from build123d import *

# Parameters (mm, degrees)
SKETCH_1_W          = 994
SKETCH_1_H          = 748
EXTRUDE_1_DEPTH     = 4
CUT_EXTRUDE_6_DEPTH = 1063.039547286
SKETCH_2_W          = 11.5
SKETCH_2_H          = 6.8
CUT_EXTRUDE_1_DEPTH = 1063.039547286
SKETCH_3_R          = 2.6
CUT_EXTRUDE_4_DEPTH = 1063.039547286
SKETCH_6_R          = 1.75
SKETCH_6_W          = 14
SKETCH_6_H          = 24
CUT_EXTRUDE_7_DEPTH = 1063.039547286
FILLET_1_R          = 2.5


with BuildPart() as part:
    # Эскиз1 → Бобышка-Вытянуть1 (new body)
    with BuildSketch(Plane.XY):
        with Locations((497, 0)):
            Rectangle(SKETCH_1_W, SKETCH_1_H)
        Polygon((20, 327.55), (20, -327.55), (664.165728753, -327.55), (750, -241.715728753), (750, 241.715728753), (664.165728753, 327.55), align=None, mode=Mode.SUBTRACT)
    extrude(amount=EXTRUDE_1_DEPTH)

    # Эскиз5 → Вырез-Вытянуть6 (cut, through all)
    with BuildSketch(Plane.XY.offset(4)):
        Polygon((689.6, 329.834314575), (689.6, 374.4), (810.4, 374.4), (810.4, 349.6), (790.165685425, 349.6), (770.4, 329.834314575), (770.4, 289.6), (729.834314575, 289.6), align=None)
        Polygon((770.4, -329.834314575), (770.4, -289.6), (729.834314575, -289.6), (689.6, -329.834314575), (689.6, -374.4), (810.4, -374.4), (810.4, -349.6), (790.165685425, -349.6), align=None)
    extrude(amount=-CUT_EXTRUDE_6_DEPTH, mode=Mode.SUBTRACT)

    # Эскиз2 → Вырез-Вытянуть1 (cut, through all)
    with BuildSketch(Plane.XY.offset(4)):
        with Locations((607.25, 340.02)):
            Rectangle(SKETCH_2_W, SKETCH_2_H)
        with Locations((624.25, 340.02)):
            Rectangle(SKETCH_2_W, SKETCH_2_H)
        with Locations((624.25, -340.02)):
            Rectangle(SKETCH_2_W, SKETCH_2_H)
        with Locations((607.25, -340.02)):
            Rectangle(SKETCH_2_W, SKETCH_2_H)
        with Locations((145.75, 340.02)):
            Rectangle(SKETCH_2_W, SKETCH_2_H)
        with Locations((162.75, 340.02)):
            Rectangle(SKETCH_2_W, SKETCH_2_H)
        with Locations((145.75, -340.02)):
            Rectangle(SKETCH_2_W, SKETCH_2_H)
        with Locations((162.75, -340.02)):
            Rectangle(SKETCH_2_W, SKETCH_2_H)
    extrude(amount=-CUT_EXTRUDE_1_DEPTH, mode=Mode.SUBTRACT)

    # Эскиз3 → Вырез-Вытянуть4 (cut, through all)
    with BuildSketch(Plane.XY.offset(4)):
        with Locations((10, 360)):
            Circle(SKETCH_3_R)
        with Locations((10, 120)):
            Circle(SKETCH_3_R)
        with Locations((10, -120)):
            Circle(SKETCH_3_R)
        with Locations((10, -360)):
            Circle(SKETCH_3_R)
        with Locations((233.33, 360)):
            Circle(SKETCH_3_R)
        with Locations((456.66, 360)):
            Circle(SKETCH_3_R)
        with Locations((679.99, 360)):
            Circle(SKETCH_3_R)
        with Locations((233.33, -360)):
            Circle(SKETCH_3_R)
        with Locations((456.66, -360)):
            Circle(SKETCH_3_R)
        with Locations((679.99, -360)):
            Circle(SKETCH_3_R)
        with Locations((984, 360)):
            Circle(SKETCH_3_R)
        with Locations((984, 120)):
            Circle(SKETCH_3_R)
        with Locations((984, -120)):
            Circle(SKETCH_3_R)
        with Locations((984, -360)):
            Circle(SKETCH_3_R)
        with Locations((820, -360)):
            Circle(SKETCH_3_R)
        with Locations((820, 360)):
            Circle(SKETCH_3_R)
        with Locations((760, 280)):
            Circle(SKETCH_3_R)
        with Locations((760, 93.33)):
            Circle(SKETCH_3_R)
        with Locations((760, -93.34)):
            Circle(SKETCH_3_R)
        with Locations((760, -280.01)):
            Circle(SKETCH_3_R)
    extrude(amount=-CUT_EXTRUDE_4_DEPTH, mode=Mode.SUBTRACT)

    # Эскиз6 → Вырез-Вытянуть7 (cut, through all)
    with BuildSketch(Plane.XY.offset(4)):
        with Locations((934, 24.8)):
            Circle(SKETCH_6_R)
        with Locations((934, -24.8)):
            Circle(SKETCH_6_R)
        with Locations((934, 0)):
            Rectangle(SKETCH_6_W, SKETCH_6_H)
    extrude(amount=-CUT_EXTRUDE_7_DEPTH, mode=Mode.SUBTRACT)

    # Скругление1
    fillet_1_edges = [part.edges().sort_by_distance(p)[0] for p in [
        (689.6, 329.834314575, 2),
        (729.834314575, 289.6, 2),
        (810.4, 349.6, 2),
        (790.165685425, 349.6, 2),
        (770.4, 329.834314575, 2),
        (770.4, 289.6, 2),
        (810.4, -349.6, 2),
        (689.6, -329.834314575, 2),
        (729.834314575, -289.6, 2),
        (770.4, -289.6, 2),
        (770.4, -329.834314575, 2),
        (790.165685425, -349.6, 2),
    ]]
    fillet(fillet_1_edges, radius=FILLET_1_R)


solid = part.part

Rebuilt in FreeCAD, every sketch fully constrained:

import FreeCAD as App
import Part
import Sketcher
Q = App.Units.Quantity


def edges_at(feature, points):
    """Names of the edges that pass closest to the given points."""
    edges = feature.Shape.Edges
    near = lambda p: min(range(len(edges)), key=lambda i: edges[i].distToShape(Part.Vertex(*p))[0])
    return sorted({f"Edge{near(p) + 1}" for p in points})


def add_polygon(sketch, points):
    """Adds a closed chain of lines whose ends are joined by coincident constraints."""
    first, n = sketch.GeometryCount, len(points)
    for a, b in zip(points, points[1:] + points[:1]):
        sketch.addGeometry(Part.LineSegment(App.Vector(*a, 0), App.Vector(*b, 0)), False)
    for i in range(n):
        sketch.addConstraint(Sketcher.Constraint("Coincident", first + i, 2, first + (i + 1) % n, 1))

doc = App.newDocument("Part")
body = doc.addObject("PartDesign::Body", "Body")

sketch1 = body.newObject("Sketcher::SketchObject", "Sketch")
sketch1.AttachmentSupport = (doc.getObject("XY_Plane"), [""])
sketch1.MapMode = "FlatFace"
add_polygon(sketch1, [(0, 374), (0, -374), (994, -374), (994, 374)])
add_polygon(sketch1, [(20, -328), (20, 328), (664, 328), (750, 242), (750, -242), (664, -328)])
sketch1.addConstraint([
    Sketcher.Constraint("Vertical", 0),
    Sketcher.Constraint("Horizontal", 1),
    Sketcher.Constraint("Vertical", 2),
    Sketcher.Constraint("Horizontal", 3),
    Sketcher.Constraint("Vertical", 4),
    Sketcher.Constraint("Horizontal", 5),
    Sketcher.Constraint("Vertical", 7),
    Sketcher.Constraint("Horizontal", 9),
    Sketcher.Constraint("Symmetric", 0, 2, 3, 2, -1, 1),
    Sketcher.Constraint("Symmetric", 5, 2, 8, 2, -1),
    Sketcher.Constraint("Perpendicular", 6, 8),
    Sketcher.Constraint("Equal", 6, 8),
    Sketcher.Constraint("DistanceX", 1, 1, 1, 2, Q("994 mm")),
    Sketcher.Constraint("DistanceY", 0, 2, 0, 1, Q("748 mm")),
    Sketcher.Constraint("DistanceY", 4, 1, 4, 2, Q("655.1 mm")),
    Sketcher.Constraint("DistanceX", -1, 1, 4, 2, Q("20 mm")),
    Sketcher.Constraint("DistanceX", -1, 1, 6, 2, Q("750 mm")),
    Sketcher.Constraint("DistanceX", 5, 1, 5, 2, Q("644.165729 mm")),
])
pad1 = body.newObject("PartDesign::Pad", "Pad")
pad1.Profile = sketch1
pad1.Length = 4

sketch2 = body.newObject("Sketcher::SketchObject", "Sketch001")
sketch2.AttachmentSupport = (doc.getObject("XY_Plane"), [""])
sketch2.MapMode = "FlatFace"
sketch2.AttachmentOffset = App.Placement(App.Vector(0, 0, 4), App.Rotation())
add_polygon(sketch2, [(690, 374), (690, 330), (730, 290), (770, 290), (770, 330), (790, 350), (810, 350), (810, 374)])
add_polygon(sketch2, [(770, -330), (770, -290), (730, -290), (690, -330), (690, -374), (810, -374), (810, -350), (790, -350)])
sketch2.addConstraint([
    Sketcher.Constraint("Vertical", 0),
    Sketcher.Constraint("Horizontal", 2),
    Sketcher.Constraint("Vertical", 3),
    Sketcher.Constraint("Horizontal", 5),
    Sketcher.Constraint("Vertical", 6),
    Sketcher.Constraint("Horizontal", 7),
    Sketcher.Constraint("Vertical", 8),
    Sketcher.Constraint("Horizontal", 9),
    Sketcher.Constraint("Vertical", 11),
    Sketcher.Constraint("Horizontal", 12),
    Sketcher.Constraint("Vertical", 13),
    Sketcher.Constraint("Horizontal", 14),
    Sketcher.Constraint("Symmetric", 2, 2, 8, 2, -1),
    Sketcher.Constraint("Symmetric", 0, 2, 10, 2, -1),
    Sketcher.Constraint("Symmetric", 6, 2, 12, 2, -1),
    Sketcher.Constraint("Symmetric", 4, 2, 14, 2, -1),
    Sketcher.Constraint("Perpendicular", 1, 4),
    Sketcher.Constraint("Parallel", 4, 10),
    Sketcher.Constraint("Perpendicular", 10, 15),
    Sketcher.Constraint("Horizontal", 0, 2, 3, 2),
    Sketcher.Constraint("Horizontal", 10, 2, 15, 2),
    Sketcher.Constraint("DistanceX", 7, 2, 7, 1, Q("120.8 mm")),
    Sketcher.Constraint("DistanceY", 6, 1, 6, 2, Q("24.8 mm")),
    Sketcher.Constraint("DistanceY", 2, 2, 4, 2, Q("60 mm")),
    Sketcher.Constraint("DistanceX", 3, 2, 5, 2, Q("40 mm")),
    Sketcher.Constraint("DistanceY", 11, 2, 1, 2, Q("664 mm")),
    Sketcher.Constraint("DistanceX", -1, 1, 0, 2, Q("689.6 mm")),
    Sketcher.Constraint("Distance", 4, Q("27.9529 mm")),
])
pocket1 = body.newObject("PartDesign::Pocket", "Pocket")
pocket1.Profile = sketch2
pocket1.Type = "ThroughAll"

sketch3 = body.newObject("Sketcher::SketchObject", "Sketch002")
sketch3.AttachmentSupport = (doc.getObject("XY_Plane"), [""])
sketch3.MapMode = "FlatFace"
sketch3.AttachmentOffset = App.Placement(App.Vector(0, 0, 4), App.Rotation())
add_polygon(sketch3, [(602, 343), (602, 337), (613, 337), (613, 343)])
add_polygon(sketch3, [(618, 343), (618, 337), (630, 337), (630, 343)])
add_polygon(sketch3, [(618, -337), (618, -343), (630, -343), (630, -337)])
add_polygon(sketch3, [(602, -337), (602, -343), (613, -343), (613, -337)])
add_polygon(sketch3, [(140, 343), (140, 337), (152, 337), (152, 343)])
add_polygon(sketch3, [(157, 343), (157, 337), (168, 337), (168, 343)])
add_polygon(sketch3, [(140, -337), (140, -343), (152, -343), (152, -337)])
add_polygon(sketch3, [(157, -337), (157, -343), (168, -343), (168, -337)])
sketch3.addConstraint([
    Sketcher.Constraint("Vertical", 0),
    Sketcher.Constraint("Horizontal", 1),
    Sketcher.Constraint("Vertical", 2),
    Sketcher.Constraint("Horizontal", 3),
    Sketcher.Constraint("Vertical", 4),
    Sketcher.Constraint("Horizontal", 5),
    Sketcher.Constraint("Vertical", 6),
    Sketcher.Constraint("Horizontal", 7),
    Sketcher.Constraint("Vertical", 8),
    Sketcher.Constraint("Horizontal", 9),
    Sketcher.Constraint("Vertical", 10),
    Sketcher.Constraint("Horizontal", 11),
    Sketcher.Constraint("Vertical", 12),
    Sketcher.Constraint("Horizontal", 13),
    Sketcher.Constraint("Vertical", 14),
    Sketcher.Constraint("Horizontal", 15),
    Sketcher.Constraint("Vertical", 16),
    Sketcher.Constraint("Horizontal", 17),
    Sketcher.Constraint("Vertical", 18),
    Sketcher.Constraint("Horizontal", 19),
    Sketcher.Constraint("Vertical", 20),
    Sketcher.Constraint("Horizontal", 21),
    Sketcher.Constraint("Vertical", 22),
    Sketcher.Constraint("Horizontal", 23),
    Sketcher.Constraint("Vertical", 24),
    Sketcher.Constraint("Horizontal", 25),
    Sketcher.Constraint("Vertical", 26),
    Sketcher.Constraint("Horizontal", 27),
    Sketcher.Constraint("Vertical", 28),
    Sketcher.Constraint("Horizontal", 29),
    Sketcher.Constraint("Vertical", 30),
    Sketcher.Constraint("Horizontal", 31),
    Sketcher.Constraint("Symmetric", 7, 2, 8, 2, -1),
    Sketcher.Constraint("Symmetric", 5, 2, 10, 2, -1),
    Sketcher.Constraint("Symmetric", 3, 2, 12, 2, -1),
    Sketcher.Constraint("Symmetric", 1, 2, 14, 2, -1),
    Sketcher.Constraint("Symmetric", 19, 2, 24, 2, -1),
    Sketcher.Constraint("Symmetric", 17, 2, 26, 2, -1),
    Sketcher.Constraint("Symmetric", 23, 2, 28, 2, -1),
    Sketcher.Constraint("Symmetric", 21, 2, 30, 2, -1),
    Sketcher.Constraint("Horizontal", 1, 2, 4, 2),
    Sketcher.Constraint("Horizontal", 3, 2, 6, 2),
    Sketcher.Constraint("Horizontal", 5, 2, 16, 2),
    Sketcher.Constraint("Horizontal", 7, 2, 18, 2),
    Sketcher.Constraint("Horizontal", 17, 2, 20, 2),
    Sketcher.Constraint("Horizontal", 19, 2, 22, 2),
    Sketcher.Constraint("Equal", 3, 5),
    Sketcher.Constraint("Equal", 15, 17),
    Sketcher.Constraint("Equal", 19, 21),
    Sketcher.Constraint("DistanceX", 1, 1, 1, 2, Q("11.5 mm")),
    Sketcher.Constraint("DistanceY", 0, 2, 0, 1, Q("6.8 mm")),
    Sketcher.Constraint("DistanceX", -1, 1, 1, 2, Q("613 mm")),
    Sketcher.Constraint("DistanceX", -1, 1, 5, 2, Q("630 mm")),
    Sketcher.Constraint("DistanceX", -1, 1, 16, 2, Q("140 mm")),
    Sketcher.Constraint("DistanceX", -1, 1, 20, 2, Q("157 mm")),
    Sketcher.Constraint("DistanceY", -1, 1, 0, 2, Q("336.62 mm")),
])
pocket2 = body.newObject("PartDesign::Pocket", "Pocket001")
pocket2.Profile = sketch3
pocket2.Type = "ThroughAll"

sketch4 = body.newObject("Sketcher::SketchObject", "Sketch003")
sketch4.AttachmentSupport = (doc.getObject("XY_Plane"), [""])
sketch4.MapMode = "FlatFace"
sketch4.AttachmentOffset = App.Placement(App.Vector(0, 0, 4), App.Rotation())
sketch4.addGeometry([
    Part.Circle(App.Vector(10, 360, 0), App.Vector(0, 0, 1), 2.6),
    Part.Circle(App.Vector(10, 120, 0), App.Vector(0, 0, 1), 2.6),
    Part.Circle(App.Vector(10, -120, 0), App.Vector(0, 0, 1), 2.6),
    Part.Circle(App.Vector(10, -360, 0), App.Vector(0, 0, 1), 2.6),
    Part.Circle(App.Vector(233.3, 360, 0), App.Vector(0, 0, 1), 2.6),
    Part.Circle(App.Vector(456.7, 360, 0), App.Vector(0, 0, 1), 2.6),
    Part.Circle(App.Vector(680, 360, 0), App.Vector(0, 0, 1), 2.6),
    Part.Circle(App.Vector(233.3, -360, 0), App.Vector(0, 0, 1), 2.6),
    Part.Circle(App.Vector(456.7, -360, 0), App.Vector(0, 0, 1), 2.6),
    Part.Circle(App.Vector(680, -360, 0), App.Vector(0, 0, 1), 2.6),
    Part.Circle(App.Vector(984, 360, 0), App.Vector(0, 0, 1), 2.6),
    Part.Circle(App.Vector(984, 120, 0), App.Vector(0, 0, 1), 2.6),
    Part.Circle(App.Vector(984, -120, 0), App.Vector(0, 0, 1), 2.6),
    Part.Circle(App.Vector(984, -360, 0), App.Vector(0, 0, 1), 2.6),
    Part.Circle(App.Vector(820, -360, 0), App.Vector(0, 0, 1), 2.6),
    Part.Circle(App.Vector(820, 360, 0), App.Vector(0, 0, 1), 2.6),
    Part.Circle(App.Vector(760, 280, 0), App.Vector(0, 0, 1), 2.6),
    Part.Circle(App.Vector(760, 93.3, 0), App.Vector(0, 0, 1), 2.6),
    Part.Circle(App.Vector(760, -93.3, 0), App.Vector(0, 0, 1), 2.6),
    Part.Circle(App.Vector(760, -280, 0), App.Vector(0, 0, 1), 2.6),
], False)
sketch4.addConstraint([
    Sketcher.Constraint("Equal", 0, 1),
    Sketcher.Constraint("Equal", 1, 2),
    Sketcher.Constraint("Equal", 2, 3),
    Sketcher.Constraint("Equal", 3, 4),
    Sketcher.Constraint("Equal", 4, 5),
    Sketcher.Constraint("Equal", 5, 6),
    Sketcher.Constraint("Equal", 6, 7),
    Sketcher.Constraint("Equal", 7, 8),
    Sketcher.Constraint("Equal", 8, 9),
    Sketcher.Constraint("Equal", 9, 10),
    Sketcher.Constraint("Equal", 10, 11),
    Sketcher.Constraint("Equal", 11, 12),
    Sketcher.Constraint("Equal", 12, 13),
    Sketcher.Constraint("Equal", 13, 14),
    Sketcher.Constraint("Equal", 14, 15),
    Sketcher.Constraint("Equal", 15, 16),
    Sketcher.Constraint("Equal", 16, 17),
    Sketcher.Constraint("Equal", 17, 18),
    Sketcher.Constraint("Equal", 18, 19),
    Sketcher.Constraint("Symmetric", 1, 3, 2, 3, -1),
    Sketcher.Constraint("Symmetric", 0, 3, 3, 3, -1),
    Sketcher.Constraint("Symmetric", 4, 3, 7, 3, -1),
    Sketcher.Constraint("Symmetric", 5, 3, 8, 3, -1),
    Sketcher.Constraint("Symmetric", 6, 3, 9, 3, -1),
    Sketcher.Constraint("Symmetric", 11, 3, 12, 3, -1),
    Sketcher.Constraint("Symmetric", 10, 3, 13, 3, -1),
    Sketcher.Constraint("Symmetric", 14, 3, 15, 3, -1),
    Sketcher.Constraint("Horizontal", 0, 3, 4, 3),
    Sketcher.Constraint("Horizontal", 4, 3, 5, 3),
    Sketcher.Constraint("Horizontal", 5, 3, 6, 3),
    Sketcher.Constraint("Horizontal", 6, 3, 10, 3),
    Sketcher.Constraint("Horizontal", 1, 3, 11, 3),
    Sketcher.Constraint("Horizontal", 13, 3, 14, 3),
    Sketcher.Constraint("Vertical", 0, 3, 1, 3),
    Sketcher.Constraint("Vertical", 10, 3, 11, 3),
    Sketcher.Constraint("Vertical", 16, 3, 17, 3),
    Sketcher.Constraint("Vertical", 17, 3, 18, 3),
    Sketcher.Constraint("Vertical", 18, 3, 19, 3),
    Sketcher.Constraint("Diameter", 0, Q("5.2 mm")),
    Sketcher.Constraint("DistanceX", -1, 1, 0, 3, Q("10 mm")),
    Sketcher.Constraint("DistanceY", -1, 1, 0, 3, Q("360 mm")),
    Sketcher.Constraint("DistanceY", -1, 1, 1, 3, Q("120 mm")),
    Sketcher.Constraint("DistanceX", -1, 1, 10, 3, Q("984 mm")),
    Sketcher.Constraint("DistanceX", -1, 1, 14, 3, Q("820 mm")),
    Sketcher.Constraint("DistanceX", -1, 1, 16, 3, Q("760 mm")),
    Sketcher.Constraint("DistanceY", -1, 1, 16, 3, Q("280 mm")),
    Sketcher.Constraint("DistanceX", -1, 1, 4, 3, Q("233.33 mm")),
    Sketcher.Constraint("DistanceX", -1, 1, 5, 3, Q("456.66 mm")),
    Sketcher.Constraint("DistanceX", -1, 1, 6, 3, Q("679.99 mm")),
    Sketcher.Constraint("DistanceY", -1, 1, 17, 3, Q("93.33 mm")),
    Sketcher.Constraint("DistanceY", 18, 3, -1, 1, Q("93.34 mm")),
    Sketcher.Constraint("DistanceY", 19, 3, -1, 1, Q("280.01 mm")),
])
pocket3 = body.newObject("PartDesign::Pocket", "Pocket002")
pocket3.Profile = sketch4
pocket3.Type = "ThroughAll"

sketch5 = body.newObject("Sketcher::SketchObject", "Sketch004")
sketch5.AttachmentSupport = (doc.getObject("XY_Plane"), [""])
sketch5.MapMode = "FlatFace"
sketch5.AttachmentOffset = App.Placement(App.Vector(0, 0, 4), App.Rotation())
sketch5.addGeometry(Part.Circle(App.Vector(934, 24.8, 0), App.Vector(0, 0, 1), 1.8), False)
sketch5.addGeometry(Part.Circle(App.Vector(934, -24.8, 0), App.Vector(0, 0, 1), 1.8), False)
add_polygon(sketch5, [(927, 12), (927, -12), (941, -12), (941, 12)])
sketch5.addConstraint([
    Sketcher.Constraint("Vertical", 2),
    Sketcher.Constraint("Horizontal", 3),
    Sketcher.Constraint("Vertical", 4),
    Sketcher.Constraint("Horizontal", 5),
    Sketcher.Constraint("Equal", 0, 1),
    Sketcher.Constraint("Symmetric", 0, 3, 1, 3, -1),
    Sketcher.Constraint("Diameter", 0, Q("3.5 mm")),
    Sketcher.Constraint("DistanceX", 3, 1, 3, 2, Q("14 mm")),
    Sketcher.Constraint("DistanceY", 2, 2, 2, 1, Q("24 mm")),
    Sketcher.Constraint("DistanceX", -1, 1, 0, 3, Q("934 mm")),
    Sketcher.Constraint("DistanceX", -1, 1, 2, 2, Q("927 mm")),
    Sketcher.Constraint("DistanceY", 2, 2, -1, 1, Q("12 mm")),
    Sketcher.Constraint("DistanceY", -1, 1, 0, 3, Q("24.8 mm")),
])
pocket4 = body.newObject("PartDesign::Pocket", "Pocket003")
pocket4.Profile = sketch5
pocket4.Type = "ThroughAll"
doc.recompute()

fillet = body.newObject("PartDesign::Fillet", "Fillet")
fillet.Base = (pocket4, edges_at(pocket4, [
    (689.6, 329.834, 2),
    (729.834, 289.6, 2),
    (810.4, 349.6, 2),
    (790.166, 349.6, 2),
    (770.4, 329.834, 2),
    (770.4, 289.6, 2),
    (810.4, -349.6, 2),
    (689.6, -329.834, 2),
    (729.834, -289.6, 2),
    (770.4, -289.6, 2),
    (770.4, -329.834, 2),
    (790.166, -349.6, 2),
]))
fillet.Radius = 2.5

doc.recompute()
